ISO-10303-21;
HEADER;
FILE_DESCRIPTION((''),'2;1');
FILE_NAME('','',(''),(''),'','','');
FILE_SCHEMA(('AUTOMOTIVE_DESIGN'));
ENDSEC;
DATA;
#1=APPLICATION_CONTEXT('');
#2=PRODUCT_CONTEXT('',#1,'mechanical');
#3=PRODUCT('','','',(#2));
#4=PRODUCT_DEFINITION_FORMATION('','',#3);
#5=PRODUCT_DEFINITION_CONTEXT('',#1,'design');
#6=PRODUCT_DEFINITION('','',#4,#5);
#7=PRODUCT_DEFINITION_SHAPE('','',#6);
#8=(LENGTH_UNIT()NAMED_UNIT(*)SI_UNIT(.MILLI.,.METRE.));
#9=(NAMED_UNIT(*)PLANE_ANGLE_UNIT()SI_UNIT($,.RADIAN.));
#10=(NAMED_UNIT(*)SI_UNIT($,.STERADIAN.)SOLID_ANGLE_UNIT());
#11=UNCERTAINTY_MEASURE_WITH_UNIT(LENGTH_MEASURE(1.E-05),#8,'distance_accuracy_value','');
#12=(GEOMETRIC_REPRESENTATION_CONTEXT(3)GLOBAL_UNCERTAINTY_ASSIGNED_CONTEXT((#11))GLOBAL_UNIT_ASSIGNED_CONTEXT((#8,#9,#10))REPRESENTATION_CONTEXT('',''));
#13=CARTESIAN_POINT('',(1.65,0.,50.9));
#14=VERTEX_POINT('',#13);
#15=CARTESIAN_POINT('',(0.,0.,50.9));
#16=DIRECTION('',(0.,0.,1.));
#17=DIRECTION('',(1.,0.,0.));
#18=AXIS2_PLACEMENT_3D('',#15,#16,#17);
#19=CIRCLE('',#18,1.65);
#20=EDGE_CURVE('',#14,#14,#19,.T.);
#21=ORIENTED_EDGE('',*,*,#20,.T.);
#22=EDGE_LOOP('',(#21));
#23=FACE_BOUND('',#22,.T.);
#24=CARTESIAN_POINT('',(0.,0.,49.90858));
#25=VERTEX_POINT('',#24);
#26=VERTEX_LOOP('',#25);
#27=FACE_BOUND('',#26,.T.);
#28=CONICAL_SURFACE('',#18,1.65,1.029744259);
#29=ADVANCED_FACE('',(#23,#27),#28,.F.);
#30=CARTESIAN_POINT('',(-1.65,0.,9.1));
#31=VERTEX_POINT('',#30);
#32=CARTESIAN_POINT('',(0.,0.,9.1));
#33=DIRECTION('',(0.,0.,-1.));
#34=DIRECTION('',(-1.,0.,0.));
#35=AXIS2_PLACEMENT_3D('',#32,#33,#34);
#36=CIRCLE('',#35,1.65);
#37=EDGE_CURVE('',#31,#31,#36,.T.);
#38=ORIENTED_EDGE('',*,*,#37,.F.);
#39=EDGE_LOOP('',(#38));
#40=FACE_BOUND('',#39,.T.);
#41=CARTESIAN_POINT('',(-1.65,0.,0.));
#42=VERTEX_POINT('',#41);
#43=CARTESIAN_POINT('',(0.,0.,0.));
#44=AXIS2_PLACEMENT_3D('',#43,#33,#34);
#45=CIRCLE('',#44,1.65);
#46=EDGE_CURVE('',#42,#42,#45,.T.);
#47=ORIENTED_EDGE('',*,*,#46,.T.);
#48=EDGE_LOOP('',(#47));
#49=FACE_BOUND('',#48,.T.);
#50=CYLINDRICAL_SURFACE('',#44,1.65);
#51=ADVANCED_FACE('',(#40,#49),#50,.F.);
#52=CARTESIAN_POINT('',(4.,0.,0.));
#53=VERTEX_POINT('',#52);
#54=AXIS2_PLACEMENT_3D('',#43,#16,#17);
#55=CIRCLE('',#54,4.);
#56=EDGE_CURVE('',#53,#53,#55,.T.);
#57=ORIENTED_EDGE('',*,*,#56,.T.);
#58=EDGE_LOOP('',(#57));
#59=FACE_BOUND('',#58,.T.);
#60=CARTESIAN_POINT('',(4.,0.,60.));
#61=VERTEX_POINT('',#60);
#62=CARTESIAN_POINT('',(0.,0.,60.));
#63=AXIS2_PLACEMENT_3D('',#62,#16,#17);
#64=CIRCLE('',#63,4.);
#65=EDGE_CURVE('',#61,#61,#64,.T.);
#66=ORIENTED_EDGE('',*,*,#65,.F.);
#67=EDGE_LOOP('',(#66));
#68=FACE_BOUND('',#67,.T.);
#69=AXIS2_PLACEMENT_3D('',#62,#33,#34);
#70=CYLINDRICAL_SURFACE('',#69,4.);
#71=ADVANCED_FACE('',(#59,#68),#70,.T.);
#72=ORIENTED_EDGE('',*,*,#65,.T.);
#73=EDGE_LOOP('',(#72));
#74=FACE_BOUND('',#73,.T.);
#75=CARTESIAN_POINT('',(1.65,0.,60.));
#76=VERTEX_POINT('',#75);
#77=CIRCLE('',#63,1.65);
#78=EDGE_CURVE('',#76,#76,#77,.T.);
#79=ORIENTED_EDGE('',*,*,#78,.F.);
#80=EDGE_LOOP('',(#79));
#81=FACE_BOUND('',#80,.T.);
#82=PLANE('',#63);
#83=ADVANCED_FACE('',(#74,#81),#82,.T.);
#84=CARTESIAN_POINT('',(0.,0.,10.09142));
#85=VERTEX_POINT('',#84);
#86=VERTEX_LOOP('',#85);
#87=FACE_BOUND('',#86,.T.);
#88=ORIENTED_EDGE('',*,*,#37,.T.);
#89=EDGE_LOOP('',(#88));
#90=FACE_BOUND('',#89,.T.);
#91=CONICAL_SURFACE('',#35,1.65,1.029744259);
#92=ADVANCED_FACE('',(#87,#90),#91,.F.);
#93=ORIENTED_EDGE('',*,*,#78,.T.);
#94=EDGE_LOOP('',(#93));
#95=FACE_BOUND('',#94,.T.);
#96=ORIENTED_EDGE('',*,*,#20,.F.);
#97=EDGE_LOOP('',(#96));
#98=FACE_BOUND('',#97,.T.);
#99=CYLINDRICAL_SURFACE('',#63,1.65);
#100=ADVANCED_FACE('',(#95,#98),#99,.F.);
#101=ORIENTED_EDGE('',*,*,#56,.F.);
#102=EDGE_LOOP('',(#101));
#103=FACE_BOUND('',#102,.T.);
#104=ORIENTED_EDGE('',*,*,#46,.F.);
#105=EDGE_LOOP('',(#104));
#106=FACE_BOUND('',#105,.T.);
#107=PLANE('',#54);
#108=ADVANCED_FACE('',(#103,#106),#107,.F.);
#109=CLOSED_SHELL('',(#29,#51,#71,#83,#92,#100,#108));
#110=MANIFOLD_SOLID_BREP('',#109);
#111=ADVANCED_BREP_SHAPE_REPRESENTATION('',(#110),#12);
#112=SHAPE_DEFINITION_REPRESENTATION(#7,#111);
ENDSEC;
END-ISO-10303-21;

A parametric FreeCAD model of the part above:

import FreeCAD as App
import Part
import Sketcher
Q = App.Units.Quantity

doc = App.newDocument("Part")
body = doc.addObject("PartDesign::Body", "Body")

sketch1 = body.newObject("Sketcher::SketchObject", "Sketch")
sketch1.AttachmentSupport = (doc.getObject("XY_Plane"), [""])
sketch1.MapMode = "FlatFace"
sketch1.addGeometry(Part.Circle(App.Vector(0, 0, 0), App.Vector(0, 0, 1), 4), False)
sketch1.addConstraint([
    Sketcher.Constraint("Coincident", 0, 3, -1, 1),
    Sketcher.Constraint("Diameter", 0, Q("8 mm")),
])
pad1 = body.newObject("PartDesign::Pad", "Pad")
pad1.Profile = sketch1
pad1.Length = 60

sketch2 = body.newObject("Sketcher::SketchObject", "Sketch001")
sketch2.AttachmentSupport = (doc.getObject("XY_Plane"), [""])
sketch2.MapMode = "FlatFace"
sketch2.AttachmentOffset = App.Placement(App.Vector(0, 0, 60), App.Rotation())
sketch2.addGeometry(Part.Circle(App.Vector(0, 0, 0), App.Vector(0, 0, 1), 1.65), False)
sketch2.addConstraint([
    Sketcher.Constraint("Coincident", 0, 3, -1, 1),
    Sketcher.Constraint("Diameter", 0, Q("3.3 mm")),
])
doc.recompute()
hole = body.newObject("PartDesign::Hole", "Hole")
hole.Profile = sketch2
hole.ThreadType = "None"
hole.Diameter = 3.3
hole.DepthType = "Dimension"
hole.Depth = 9.1
hole.DrillPoint = "Angled"
hole.DrillPointAngle = 118

sketch3 = body.newObject("Sketcher::SketchObject", "Sketch002")
sketch3.AttachmentSupport = (doc.getObject("XY_Plane"), [""])
sketch3.MapMode = "FlatFace"
sketch3.addGeometry(Part.Circle(App.Vector(0, 0, 0), App.Vector(0, 0, 1), 1.65), False)
sketch3.addConstraint([
    Sketcher.Constraint("Coincident", 0, 3, -1, 1),
    Sketcher.Constraint("Diameter", 0, Q("3.3 mm")),
])
doc.recompute()
hole2 = body.newObject("PartDesign::Hole", "Hole001")
hole2.Profile = sketch3
hole2.ThreadType = "None"
hole2.Diameter = 3.3
hole2.DepthType = "Dimension"
hole2.Depth = 9.1
hole2.DrillPoint = "Angled"
hole2.DrillPointAngle = 118
hole2.Reversed = True

doc.recompute()
